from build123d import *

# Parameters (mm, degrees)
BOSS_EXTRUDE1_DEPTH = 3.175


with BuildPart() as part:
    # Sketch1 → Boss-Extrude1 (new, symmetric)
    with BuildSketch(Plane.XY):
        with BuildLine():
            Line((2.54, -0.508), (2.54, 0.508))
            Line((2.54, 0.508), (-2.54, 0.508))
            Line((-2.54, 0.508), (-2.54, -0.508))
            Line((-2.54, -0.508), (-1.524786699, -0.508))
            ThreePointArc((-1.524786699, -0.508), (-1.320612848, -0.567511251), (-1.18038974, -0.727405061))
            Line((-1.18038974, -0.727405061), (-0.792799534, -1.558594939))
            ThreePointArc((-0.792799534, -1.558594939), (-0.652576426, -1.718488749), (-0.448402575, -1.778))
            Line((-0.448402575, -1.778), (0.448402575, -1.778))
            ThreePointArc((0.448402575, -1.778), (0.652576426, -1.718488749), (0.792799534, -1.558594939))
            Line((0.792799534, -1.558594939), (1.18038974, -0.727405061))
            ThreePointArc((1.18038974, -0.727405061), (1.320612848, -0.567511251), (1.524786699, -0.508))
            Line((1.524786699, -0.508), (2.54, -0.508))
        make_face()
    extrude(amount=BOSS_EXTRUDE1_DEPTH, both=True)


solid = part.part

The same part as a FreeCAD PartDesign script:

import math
import FreeCAD as App
import Part
import Sketcher

V = App.Vector
Q = App.Units.Quantity

doc = App.newDocument("Part")
params = doc.addObject("Spreadsheet::Sheet", "Params")
for row, (alias, value) in enumerate([
    ("sketch1_width", "0.2 in"),
    ("sketch1_height", "0.04 in"),
    ("pad1_length", "0.25 in"),
], start=1):
    params.set(f"A{row}", alias)
    params.set(f"B{row}", "=" + value)
    params.setAlias(f"B{row}", alias)

body = doc.addObject("PartDesign::Body", "Body")

sketch1 = body.newObject("Sketcher::SketchObject", "Sketch")
sketch1.AttachmentSupport = (doc.getObject("XY_Plane"), [""])
sketch1.MapMode = "FlatFace"
sketch1.addGeometry(Part.LineSegment(V(2.54, -0.51, 0), V(2.54, 0.51, 0)), False)
sketch1.addGeometry(Part.LineSegment(V(2.54, 0.51, 0), V(-2.54, 0.51, 0)), False)
sketch1.addGeometry(Part.LineSegment(V(-2.54, 0.51, 0), V(-2.54, -0.51, 0)), False)
sketch1.addGeometry(Part.LineSegment(V(-2.54, -0.51, 0), V(-1.52, -0.51, 0)), False)
sketch1.addGeometry(Part.ArcOfCircle(Part.Circle(V(-1.52, -0.89, 0), V(0, 0, 1), 0.38), math.radians(25), math.radians(90)), False)
sketch1.addGeometry(Part.LineSegment(V(-1.18, -0.73, 0), V(-0.79, -1.56, 0)), False)
sketch1.addGeometry(Part.ArcOfCircle(Part.Circle(V(-0.45, -1.4, 0), V(0, 0, 1), 0.38), math.radians(-155), math.radians(-90)), False)
sketch1.addGeometry(Part.LineSegment(V(-0.45, -1.78, 0), V(0.45, -1.78, 0)), False)
sketch1.addGeometry(Part.ArcOfCircle(Part.Circle(V(0.45, -1.4, 0), V(0, 0, 1), 0.38), math.radians(-90), math.radians(-25)), False)
sketch1.addGeometry(Part.LineSegment(V(0.79, -1.56, 0), V(1.18, -0.73, 0)), False)
sketch1.addGeometry(Part.ArcOfCircle(Part.Circle(V(1.52, -0.89, 0), V(0, 0, 1), 0.38), math.radians(90), math.radians(155)), False)
sketch1.addGeometry(Part.LineSegment(V(1.52, -0.51, 0), V(2.54, -0.51, 0)), False)
sketch1.addConstraint(Sketcher.Constraint("Coincident", 0, 2, 1, 1))
sketch1.addConstraint(Sketcher.Constraint("Coincident", 1, 2, 2, 1))
sketch1.addConstraint(Sketcher.Constraint("Coincident", 2, 2, 3, 1))
sketch1.addConstraint(Sketcher.Constraint("Tangent", 3, 2, 4, 2))
sketch1.addConstraint(Sketcher.Constraint("Tangent", 4, 1, 5, 1))
sketch1.addConstraint(Sketcher.Constraint("Tangent", 5, 2, 6, 1))
sketch1.addConstraint(Sketcher.Constraint("Tangent", 6, 2, 7, 1))
sketch1.addConstraint(Sketcher.Constraint("Tangent", 7, 2, 8, 1))
sketch1.addConstraint(Sketcher.Constraint("Tangent", 8, 2, 9, 1))
sketch1.addConstraint(Sketcher.Constraint("Tangent", 9, 2, 10, 2))
sketch1.addConstraint(Sketcher.Constraint("Tangent", 10, 1, 11, 1))
sketch1.addConstraint(Sketcher.Constraint("Coincident", 11, 2, 0, 1))
sketch1.addConstraint(Sketcher.Constraint("Vertical", 0))
sketch1.addConstraint(Sketcher.Constraint("Horizontal", 1))
sketch1.addConstraint(Sketcher.Constraint("Vertical", 2))
sketch1.addConstraint(Sketcher.Constraint("Horizontal", 3))
sketch1.addConstraint(Sketcher.Constraint("Horizontal", 7))
sketch1.addConstraint(Sketcher.Constraint("Horizontal", 11))
sketch1.addConstraint(Sketcher.Constraint("Equal", 4, 6))
sketch1.addConstraint(Sketcher.Constraint("Equal", 6, 8))
sketch1.addConstraint(Sketcher.Constraint("Equal", 8, 10))
sketch1.addConstraint(Sketcher.Constraint("Symmetric", 0, 2, 2, 2, -1, 1))
sketch1.addConstraint(Sketcher.Constraint("Symmetric", 4, 3, 10, 3, -2))
sketch1.addConstraint(Sketcher.Constraint("Horizontal", 5, 2, 8, 2))
sketch1.addConstraint(Sketcher.Constraint("DistanceX", 1, 2, 1, 1, Q("0.2 in")))
sketch1.addConstraint(Sketcher.Constraint("Angle", 5, Q("-65 deg")))
sketch1.addConstraint(Sketcher.Constraint("DistanceY", 0, 1, 0, 2, Q("0.04 in")))
sketch1.addConstraint(Sketcher.Constraint("DistanceY", 6, 2, -1, 1, Q("0.07 in")))
sketch1.addConstraint(Sketcher.Constraint("Radius", 4, 0.38))
sketch1.addConstraint(Sketcher.Constraint("DistanceX", 5, 2, -1, 1, 0.7928))
sketch1.setExpression("Constraints[24]", "Params.sketch1_width")
sketch1.setExpression("Constraints[26]", "Params.sketch1_height")
pad1 = body.newObject("PartDesign::Pad", "Pad")
pad1.Profile = sketch1
pad1.setExpression("Length", "Params.pad1_length")
pad1.Midplane = True

doc.recompute()
